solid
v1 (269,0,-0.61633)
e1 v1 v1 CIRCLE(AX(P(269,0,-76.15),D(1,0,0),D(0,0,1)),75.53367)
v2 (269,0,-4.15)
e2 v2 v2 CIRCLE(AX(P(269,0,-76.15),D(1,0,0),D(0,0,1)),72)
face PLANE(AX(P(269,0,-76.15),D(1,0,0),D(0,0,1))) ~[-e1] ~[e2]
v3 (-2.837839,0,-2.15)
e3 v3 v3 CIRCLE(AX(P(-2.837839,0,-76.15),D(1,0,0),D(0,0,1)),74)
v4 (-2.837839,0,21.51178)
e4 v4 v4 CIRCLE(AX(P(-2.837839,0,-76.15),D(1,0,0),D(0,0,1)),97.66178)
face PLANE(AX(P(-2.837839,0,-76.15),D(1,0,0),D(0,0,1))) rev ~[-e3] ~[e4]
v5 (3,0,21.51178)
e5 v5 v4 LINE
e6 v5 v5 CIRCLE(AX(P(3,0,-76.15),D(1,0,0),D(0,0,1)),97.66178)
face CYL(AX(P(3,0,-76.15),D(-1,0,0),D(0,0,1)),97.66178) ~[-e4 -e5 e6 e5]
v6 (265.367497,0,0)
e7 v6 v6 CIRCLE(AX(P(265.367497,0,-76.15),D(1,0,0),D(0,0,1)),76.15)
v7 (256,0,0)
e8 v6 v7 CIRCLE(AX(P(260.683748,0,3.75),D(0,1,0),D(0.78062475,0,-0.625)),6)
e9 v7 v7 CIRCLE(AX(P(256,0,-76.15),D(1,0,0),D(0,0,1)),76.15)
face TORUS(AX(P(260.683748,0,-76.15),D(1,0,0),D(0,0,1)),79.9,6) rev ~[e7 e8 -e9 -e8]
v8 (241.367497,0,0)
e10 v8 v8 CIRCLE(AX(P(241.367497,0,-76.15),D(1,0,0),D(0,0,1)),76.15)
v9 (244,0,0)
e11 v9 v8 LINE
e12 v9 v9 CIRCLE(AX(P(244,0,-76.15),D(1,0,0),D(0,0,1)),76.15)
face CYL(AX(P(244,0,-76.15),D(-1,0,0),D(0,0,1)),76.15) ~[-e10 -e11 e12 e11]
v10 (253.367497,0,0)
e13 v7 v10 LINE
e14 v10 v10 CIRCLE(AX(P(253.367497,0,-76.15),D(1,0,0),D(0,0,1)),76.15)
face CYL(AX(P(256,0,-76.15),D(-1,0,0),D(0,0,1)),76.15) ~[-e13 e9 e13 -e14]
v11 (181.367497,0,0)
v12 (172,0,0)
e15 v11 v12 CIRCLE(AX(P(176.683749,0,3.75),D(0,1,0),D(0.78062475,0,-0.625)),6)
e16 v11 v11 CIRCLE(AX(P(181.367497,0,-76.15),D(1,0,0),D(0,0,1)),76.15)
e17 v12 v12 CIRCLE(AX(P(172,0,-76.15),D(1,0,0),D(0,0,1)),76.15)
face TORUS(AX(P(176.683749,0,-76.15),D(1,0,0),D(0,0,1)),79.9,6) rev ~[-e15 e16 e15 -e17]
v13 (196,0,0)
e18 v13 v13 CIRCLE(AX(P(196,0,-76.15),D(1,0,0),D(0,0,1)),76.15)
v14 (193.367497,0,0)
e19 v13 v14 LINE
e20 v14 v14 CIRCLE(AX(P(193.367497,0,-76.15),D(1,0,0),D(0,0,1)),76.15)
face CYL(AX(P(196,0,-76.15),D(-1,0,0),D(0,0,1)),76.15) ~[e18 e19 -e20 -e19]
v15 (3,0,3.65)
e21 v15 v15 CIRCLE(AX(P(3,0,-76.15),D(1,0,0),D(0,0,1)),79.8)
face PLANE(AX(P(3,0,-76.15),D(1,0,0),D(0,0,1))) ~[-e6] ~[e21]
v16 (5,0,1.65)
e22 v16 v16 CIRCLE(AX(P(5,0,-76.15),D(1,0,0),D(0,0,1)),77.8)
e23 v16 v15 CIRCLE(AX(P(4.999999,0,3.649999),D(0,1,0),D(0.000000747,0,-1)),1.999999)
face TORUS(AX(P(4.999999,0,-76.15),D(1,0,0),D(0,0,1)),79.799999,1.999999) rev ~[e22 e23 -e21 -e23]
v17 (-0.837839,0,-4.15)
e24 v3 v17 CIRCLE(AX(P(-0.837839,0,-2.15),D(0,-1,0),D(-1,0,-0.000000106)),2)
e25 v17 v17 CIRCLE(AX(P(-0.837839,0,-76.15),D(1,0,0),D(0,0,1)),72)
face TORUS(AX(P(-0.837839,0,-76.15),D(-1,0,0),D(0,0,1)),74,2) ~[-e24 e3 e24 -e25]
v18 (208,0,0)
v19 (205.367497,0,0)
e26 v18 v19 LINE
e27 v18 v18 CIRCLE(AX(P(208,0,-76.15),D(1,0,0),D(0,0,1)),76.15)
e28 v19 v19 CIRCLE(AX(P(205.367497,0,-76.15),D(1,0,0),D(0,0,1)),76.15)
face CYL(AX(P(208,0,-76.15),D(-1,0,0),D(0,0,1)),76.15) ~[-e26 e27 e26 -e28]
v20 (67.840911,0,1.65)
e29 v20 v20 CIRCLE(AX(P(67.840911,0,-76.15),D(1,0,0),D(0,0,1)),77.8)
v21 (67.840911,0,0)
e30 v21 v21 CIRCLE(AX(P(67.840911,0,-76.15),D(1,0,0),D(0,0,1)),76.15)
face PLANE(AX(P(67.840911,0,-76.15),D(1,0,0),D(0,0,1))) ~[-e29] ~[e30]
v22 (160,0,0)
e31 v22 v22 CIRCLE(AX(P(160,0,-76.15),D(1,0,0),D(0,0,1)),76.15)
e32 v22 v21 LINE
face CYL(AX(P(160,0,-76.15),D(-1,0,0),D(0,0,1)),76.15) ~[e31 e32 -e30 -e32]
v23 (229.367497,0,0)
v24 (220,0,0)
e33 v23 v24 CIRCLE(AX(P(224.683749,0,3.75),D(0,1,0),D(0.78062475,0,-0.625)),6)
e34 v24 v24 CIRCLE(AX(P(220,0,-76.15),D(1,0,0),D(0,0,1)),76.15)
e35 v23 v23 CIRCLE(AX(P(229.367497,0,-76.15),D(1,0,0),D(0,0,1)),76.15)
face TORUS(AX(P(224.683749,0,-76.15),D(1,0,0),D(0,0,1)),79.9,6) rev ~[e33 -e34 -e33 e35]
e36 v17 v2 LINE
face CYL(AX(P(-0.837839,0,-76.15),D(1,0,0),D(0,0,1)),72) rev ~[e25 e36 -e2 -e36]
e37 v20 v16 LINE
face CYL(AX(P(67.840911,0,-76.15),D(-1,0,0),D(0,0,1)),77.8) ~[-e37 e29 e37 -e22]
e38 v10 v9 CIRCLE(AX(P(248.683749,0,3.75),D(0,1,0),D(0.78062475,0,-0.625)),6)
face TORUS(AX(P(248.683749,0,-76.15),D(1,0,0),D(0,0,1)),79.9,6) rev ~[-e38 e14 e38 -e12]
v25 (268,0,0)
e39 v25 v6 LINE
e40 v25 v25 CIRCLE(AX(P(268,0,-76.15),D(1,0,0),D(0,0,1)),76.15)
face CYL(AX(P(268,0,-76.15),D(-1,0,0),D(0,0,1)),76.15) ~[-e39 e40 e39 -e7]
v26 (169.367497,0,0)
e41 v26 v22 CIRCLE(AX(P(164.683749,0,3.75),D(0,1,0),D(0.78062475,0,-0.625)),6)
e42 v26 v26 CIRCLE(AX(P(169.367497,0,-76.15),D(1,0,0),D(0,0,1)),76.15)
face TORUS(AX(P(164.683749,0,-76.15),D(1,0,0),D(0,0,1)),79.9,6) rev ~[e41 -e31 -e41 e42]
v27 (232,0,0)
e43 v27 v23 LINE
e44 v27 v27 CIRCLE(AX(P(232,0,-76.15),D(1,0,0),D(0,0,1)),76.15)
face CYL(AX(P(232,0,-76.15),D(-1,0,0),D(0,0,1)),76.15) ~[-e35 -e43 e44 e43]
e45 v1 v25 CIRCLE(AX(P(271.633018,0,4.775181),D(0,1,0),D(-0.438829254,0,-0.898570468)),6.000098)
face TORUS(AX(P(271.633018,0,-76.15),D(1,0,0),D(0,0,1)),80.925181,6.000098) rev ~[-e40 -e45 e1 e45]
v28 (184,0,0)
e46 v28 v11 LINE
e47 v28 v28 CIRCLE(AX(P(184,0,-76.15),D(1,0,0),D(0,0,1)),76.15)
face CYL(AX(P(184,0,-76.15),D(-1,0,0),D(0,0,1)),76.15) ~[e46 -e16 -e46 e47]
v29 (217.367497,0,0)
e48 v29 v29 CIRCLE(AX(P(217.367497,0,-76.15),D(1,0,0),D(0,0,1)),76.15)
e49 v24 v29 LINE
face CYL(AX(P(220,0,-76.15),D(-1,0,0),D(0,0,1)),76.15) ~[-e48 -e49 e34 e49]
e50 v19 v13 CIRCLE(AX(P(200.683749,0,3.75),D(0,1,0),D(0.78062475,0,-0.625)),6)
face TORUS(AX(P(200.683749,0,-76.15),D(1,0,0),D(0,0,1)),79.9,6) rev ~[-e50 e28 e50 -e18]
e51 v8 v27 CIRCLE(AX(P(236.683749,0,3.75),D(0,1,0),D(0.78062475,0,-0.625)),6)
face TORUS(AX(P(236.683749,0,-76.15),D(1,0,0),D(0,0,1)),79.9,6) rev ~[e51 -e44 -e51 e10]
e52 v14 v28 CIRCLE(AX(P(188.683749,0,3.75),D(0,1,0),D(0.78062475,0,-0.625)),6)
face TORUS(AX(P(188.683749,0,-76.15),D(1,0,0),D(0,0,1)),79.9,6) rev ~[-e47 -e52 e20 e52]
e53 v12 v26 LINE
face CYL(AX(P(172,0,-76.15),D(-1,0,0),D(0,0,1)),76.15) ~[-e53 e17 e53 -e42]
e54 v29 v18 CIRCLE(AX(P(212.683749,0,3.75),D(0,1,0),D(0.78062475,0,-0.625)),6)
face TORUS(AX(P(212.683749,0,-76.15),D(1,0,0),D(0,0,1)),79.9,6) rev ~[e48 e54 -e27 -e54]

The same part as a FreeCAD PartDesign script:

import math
import FreeCAD as App
import Part
import Sketcher
from FreeCAD import Vector

doc = App.newDocument("Part")
body = doc.addObject("PartDesign::Body", "Body")

# Sketch on XZ plane
sketch1 = body.newObject("Sketcher::SketchObject", "Sketch")
sketch1.AttachmentSupport = (doc.getObject("XZ_Plane"), [""])
sketch1.MapMode = "FlatFace"
sketch1.addGeometry(Part.ArcOfCircle(Part.Circle(Vector(-0.837839, -2.15, 0), Vector(0, 0, 1), 2), math.radians(-179.999994), math.radians(-90.000006)), False)
sketch1.addGeometry(Part.LineSegment(Vector(-0.837839, -4.15, 0), Vector(269, -4.15, 0)), False)
sketch1.addGeometry(Part.LineSegment(Vector(269, -4.15, 0), Vector(269, -0.61633, 0)), False)
sketch1.addGeometry(Part.ArcOfCircle(Part.Circle(Vector(271.633018, 4.775181, 0), Vector(0, 0, 1), 6.000098), math.radians(-127.264341), math.radians(-116.029207)), False)
sketch1.addGeometry(Part.LineSegment(Vector(268, 0, 0), Vector(265.367497, 0, 0)), False)
sketch1.addGeometry(Part.ArcOfCircle(Part.Circle(Vector(260.683748, 3.75, 0), Vector(0, 0, 1), 6), math.radians(-141.317813), math.radians(-38.682187)), False)
sketch1.addGeometry(Part.LineSegment(Vector(256, 0, 0), Vector(253.367497, 0, 0)), False)
sketch1.addGeometry(Part.ArcOfCircle(Part.Circle(Vector(248.683749, 3.75, 0), Vector(0, 0, 1), 6), math.radians(-141.317813), math.radians(-38.682187)), False)
sketch1.addGeometry(Part.LineSegment(Vector(244, 0, 0), Vector(241.367497, 0, 0)), False)
sketch1.addGeometry(Part.ArcOfCircle(Part.Circle(Vector(236.683749, 3.75, 0), Vector(0, 0, 1), 6), math.radians(-141.317813), math.radians(-38.682187)), False)
sketch1.addGeometry(Part.LineSegment(Vector(232, 0, 0), Vector(229.367497, 0, 0)), False)
sketch1.addGeometry(Part.ArcOfCircle(Part.Circle(Vector(224.683749, 3.75, 0), Vector(0, 0, 1), 6), math.radians(-141.317813), math.radians(-38.682187)), False)
sketch1.addGeometry(Part.LineSegment(Vector(220, 0, 0), Vector(217.367497, 0, 0)), False)
sketch1.addGeometry(Part.ArcOfCircle(Part.Circle(Vector(212.683749, 3.75, 0), Vector(0, 0, 1), 6), math.radians(-141.317813), math.radians(-38.682187)), False)
sketch1.addGeometry(Part.LineSegment(Vector(208, 0, 0), Vector(205.367497, 0, 0)), False)
sketch1.addGeometry(Part.ArcOfCircle(Part.Circle(Vector(200.683749, 3.75, 0), Vector(0, 0, 1), 6), math.radians(-141.317813), math.radians(-38.682187)), False)
sketch1.addGeometry(Part.LineSegment(Vector(196, 0, 0), Vector(193.367497, 0, 0)), False)
sketch1.addGeometry(Part.ArcOfCircle(Part.Circle(Vector(188.683749, 3.75, 0), Vector(0, 0, 1), 6), math.radians(-141.317813), math.radians(-38.682187)), False)
sketch1.addGeometry(Part.LineSegment(Vector(184, 0, 0), Vector(181.367497, 0, 0)), False)
sketch1.addGeometry(Part.ArcOfCircle(Part.Circle(Vector(176.683749, 3.75, 0), Vector(0, 0, 1), 6), math.radians(-141.317813), math.radians(-38.682187)), False)
sketch1.addGeometry(Part.LineSegment(Vector(172, 0, 0), Vector(169.367497, 0, 0)), False)
sketch1.addGeometry(Part.ArcOfCircle(Part.Circle(Vector(164.683749, 3.75, 0), Vector(0, 0, 1), 6), math.radians(-141.317813), math.radians(-38.682187)), False)
sketch1.addGeometry(Part.LineSegment(Vector(160, 0, 0), Vector(67.840911, 0, 0)), False)
sketch1.addGeometry(Part.LineSegment(Vector(67.840911, 0, 0), Vector(67.840911, 1.65, 0)), False)
sketch1.addGeometry(Part.LineSegment(Vector(67.840911, 1.65, 0), Vector(5, 1.65, 0)), False)
sketch1.addGeometry(Part.ArcOfCircle(Part.Circle(Vector(4.999999, 3.649999, 0), Vector(0, 0, 1), 1.999999), math.radians(179.999957), math.radians(270.000043)), False)
sketch1.addGeometry(Part.LineSegment(Vector(3, 3.65, 0), Vector(3, 21.51178, 0)), False)
sketch1.addGeometry(Part.LineSegment(Vector(3, 21.51178, 0), Vector(-2.837839, 21.51178, 0)), False)
sketch1.addGeometry(Part.LineSegment(Vector(-2.837839, 21.51178, 0), Vector(-2.837839, -2.15, 0)), False)
sketch1.addGeometry(Part.LineSegment(Vector(-2.837839, -76.15, 0), Vector(271.633018, -76.15, 0)), True)  # axis
sketch1.addConstraint(Sketcher.Constraint("Tangent", 0, 2, 1, 1))
sketch1.addConstraint(Sketcher.Constraint("Coincident", 1, 2, 2, 1))
sketch1.addConstraint(Sketcher.Constraint("Coincident", 2, 2, 3, 2))
sketch1.addConstraint(Sketcher.Constraint("Coincident", 3, 1, 4, 1))
sketch1.addConstraint(Sketcher.Constraint("Coincident", 4, 2, 5, 2))
sketch1.addConstraint(Sketcher.Constraint("Coincident", 5, 1, 6, 1))
sketch1.addConstraint(Sketcher.Constraint("Coincident", 6, 2, 7, 2))
sketch1.addConstraint(Sketcher.Constraint("Coincident", 7, 1, 8, 1))
sketch1.addConstraint(Sketcher.Constraint("Coincident", 8, 2, 9, 2))
sketch1.addConstraint(Sketcher.Constraint("Coincident", 9, 1, 10, 1))
sketch1.addConstraint(Sketcher.Constraint("Coincident", 10, 2, 11, 2))
sketch1.addConstraint(Sketcher.Constraint("Coincident", 11, 1, 12, 1))
sketch1.addConstraint(Sketcher.Constraint("Coincident", 12, 2, 13, 2))
sketch1.addConstraint(Sketcher.Constraint("Coincident", 13, 1, 14, 1))
sketch1.addConstraint(Sketcher.Constraint("Coincident", 14, 2, 15, 2))
sketch1.addConstraint(Sketcher.Constraint("Coincident", 15, 1, 16, 1))
sketch1.addConstraint(Sketcher.Constraint("Coincident", 16, 2, 17, 2))
sketch1.addConstraint(Sketcher.Constraint("Coincident", 17, 1, 18, 1))
sketch1.addConstraint(Sketcher.Constraint("Coincident", 18, 2, 19, 2))
sketch1.addConstraint(Sketcher.Constraint("Coincident", 19, 1, 20, 1))
sketch1.addConstraint(Sketcher.Constraint("Coincident", 20, 2, 21, 2))
sketch1.addConstraint(Sketcher.Constraint("Coincident", 21, 1, 22, 1))
sketch1.addConstraint(Sketcher.Constraint("Coincident", 22, 2, 23, 1))
sketch1.addConstraint(Sketcher.Constraint("Coincident", 23, 2, 24, 1))
sketch1.addConstraint(Sketcher.Constraint("Tangent", 24, 2, 25, 2))
sketch1.addConstraint(Sketcher.Constraint("Tangent", 25, 1, 26, 1))
sketch1.addConstraint(Sketcher.Constraint("Coincident", 26, 2, 27, 1))
sketch1.addConstraint(Sketcher.Constraint("Coincident", 27, 2, 28, 1))
sketch1.addConstraint(Sketcher.Constraint("Tangent", 28, 2, 0, 1))
sketch1.addConstraint(Sketcher.Constraint("Horizontal", 1))
sketch1.addConstraint(Sketcher.Constraint("Vertical", 2))
sketch1.addConstraint(Sketcher.Constraint("Horizontal", 4))
sketch1.addConstraint(Sketcher.Constraint("Horizontal", 6))
sketch1.addConstraint(Sketcher.Constraint("Horizontal", 8))
sketch1.addConstraint(Sketcher.Constraint("Horizontal", 10))
sketch1.addConstraint(Sketcher.Constraint("Horizontal", 12))
sketch1.addConstraint(Sketcher.Constraint("Horizontal", 14))
sketch1.addConstraint(Sketcher.Constraint("Horizontal", 16))
sketch1.addConstraint(Sketcher.Constraint("Horizontal", 18))
sketch1.addConstraint(Sketcher.Constraint("Horizontal", 20))
sketch1.addConstraint(Sketcher.Constraint("Horizontal", 22))
sketch1.addConstraint(Sketcher.Constraint("Vertical", 23))
sketch1.addConstraint(Sketcher.Constraint("Horizontal", 24))
sketch1.addConstraint(Sketcher.Constraint("Vertical", 26))
sketch1.addConstraint(Sketcher.Constraint("Horizontal", 27))
sketch1.addConstraint(Sketcher.Constraint("Vertical", 28))
sketch1.addConstraint(Sketcher.Constraint("Horizontal", 29))
sketch1.addConstraint(Sketcher.Constraint("Equal", 5, 7))
sketch1.addConstraint(Sketcher.Constraint("Equal", 7, 9))
sketch1.addConstraint(Sketcher.Constraint("Equal", 9, 11))
sketch1.addConstraint(Sketcher.Constraint("Equal", 11, 13))
sketch1.addConstraint(Sketcher.Constraint("Equal", 13, 15))
sketch1.addConstraint(Sketcher.Constraint("Equal", 15, 17))
sketch1.addConstraint(Sketcher.Constraint("Equal", 17, 19))
sketch1.addConstraint(Sketcher.Constraint("Equal", 19, 21))
sketch1.addConstraint(Sketcher.Constraint("Equal", 0, 25))
sketch1.addConstraint(Sketcher.Constraint("PointOnObject", 3, 1, -1))
sketch1.addConstraint(Sketcher.Constraint("PointOnObject", 5, 1, -1))
sketch1.addConstraint(Sketcher.Constraint("PointOnObject", 7, 1, -1))
sketch1.addConstraint(Sketcher.Constraint("PointOnObject", 9, 1, -1))
sketch1.addConstraint(Sketcher.Constraint("PointOnObject", 11, 1, -1))
sketch1.addConstraint(Sketcher.Constraint("PointOnObject", 13, 1, -1))
sketch1.addConstraint(Sketcher.Constraint("PointOnObject", 15, 1, -1))
sketch1.addConstraint(Sketcher.Constraint("PointOnObject", 17, 1, -1))
sketch1.addConstraint(Sketcher.Constraint("PointOnObject", 19, 1, -1))
sketch1.addConstraint(Sketcher.Constraint("PointOnObject", 21, 1, -1))
sketch1.addConstraint(Sketcher.Constraint("Horizontal", 5, 3, 7, 3))
sketch1.addConstraint(Sketcher.Constraint("Horizontal", 7, 3, 9, 3))
sketch1.addConstraint(Sketcher.Constraint("Horizontal", 9, 3, 11, 3))
sketch1.addConstraint(Sketcher.Constraint("Horizontal", 11, 3, 13, 3))
sketch1.addConstraint(Sketcher.Constraint("Horizontal", 13, 3, 15, 3))
sketch1.addConstraint(Sketcher.Constraint("Horizontal", 15, 3, 17, 3))
sketch1.addConstraint(Sketcher.Constraint("Horizontal", 17, 3, 19, 3))
sketch1.addConstraint(Sketcher.Constraint("Horizontal", 19, 3, 21, 3))
sketch1.addConstraint(Sketcher.Constraint("Vertical", 28, 2, 29, 1))
sketch1.addConstraint(Sketcher.Constraint("Vertical", 3, 3, 29, 2))
sketch1.addConstraint(Sketcher.Constraint("Equal", 4, 6))
sketch1.addConstraint(Sketcher.Constraint("Equal", 6, 8))
sketch1.addConstraint(Sketcher.Constraint("Equal", 8, 10))
sketch1.addConstraint(Sketcher.Constraint("Equal", 10, 12))
sketch1.addConstraint(Sketcher.Constraint("Equal", 12, 14))
sketch1.addConstraint(Sketcher.Constraint("Equal", 14, 16))
sketch1.addConstraint(Sketcher.Constraint("Equal", 16, 18))
sketch1.addConstraint(Sketcher.Constraint("Equal", 18, 20))
sketch1.addConstraint(Sketcher.Constraint("Radius", 0, 2.0))
sketch1.addConstraint(Sketcher.Constraint("Radius", 5, 6.0))
sketch1.addConstraint(Sketcher.Constraint("DistanceX", -1, 1, 25, 3, 4.999999))
sketch1.addConstraint(Sketcher.Constraint("DistanceX", -1, 1, 1, 2, 269.0))
sketch1.addConstraint(Sketcher.Constraint("DistanceX", -1, 1, 3, 1, 268.0))
sketch1.addConstraint(Sketcher.Constraint("DistanceX", -1, 1, 5, 1, 256.0))
sketch1.addConstraint(Sketcher.Constraint("DistanceY", 29, 1, 0, 2, 72.0))
sketch1.addConstraint(Sketcher.Constraint("DistanceY", 23, 1, 23, 2, 1.65))
sketch1.addConstraint(Sketcher.Constraint("DistanceY", 0, 3, 5, 3, 5.9))
sketch1.addConstraint(Sketcher.Constraint("DistanceY", 0, 3, 25, 3, 5.799998))
sketch1.addConstraint(Sketcher.Constraint("Radius", 3, 6.000098))
sketch1.addConstraint(Sketcher.Constraint("DistanceX", 1, 1, 1, 2, 269.837839))
sketch1.addConstraint(Sketcher.Constraint("DistanceX", 22, 2, 22, 1, 92.159089))
sketch1.addConstraint(Sketcher.Constraint("DistanceY", 2, 1, 2, 2, 3.53367))
sketch1.addConstraint(Sketcher.Constraint("DistanceY", 26, 1, 26, 2, 17.86178))
revolution = body.newObject("PartDesign::Revolution", "Revolution")
revolution.Profile = sketch1
revolution.ReferenceAxis = (sketch1, ["Axis0"])
revolution.Angle = 360

doc.recompute()
